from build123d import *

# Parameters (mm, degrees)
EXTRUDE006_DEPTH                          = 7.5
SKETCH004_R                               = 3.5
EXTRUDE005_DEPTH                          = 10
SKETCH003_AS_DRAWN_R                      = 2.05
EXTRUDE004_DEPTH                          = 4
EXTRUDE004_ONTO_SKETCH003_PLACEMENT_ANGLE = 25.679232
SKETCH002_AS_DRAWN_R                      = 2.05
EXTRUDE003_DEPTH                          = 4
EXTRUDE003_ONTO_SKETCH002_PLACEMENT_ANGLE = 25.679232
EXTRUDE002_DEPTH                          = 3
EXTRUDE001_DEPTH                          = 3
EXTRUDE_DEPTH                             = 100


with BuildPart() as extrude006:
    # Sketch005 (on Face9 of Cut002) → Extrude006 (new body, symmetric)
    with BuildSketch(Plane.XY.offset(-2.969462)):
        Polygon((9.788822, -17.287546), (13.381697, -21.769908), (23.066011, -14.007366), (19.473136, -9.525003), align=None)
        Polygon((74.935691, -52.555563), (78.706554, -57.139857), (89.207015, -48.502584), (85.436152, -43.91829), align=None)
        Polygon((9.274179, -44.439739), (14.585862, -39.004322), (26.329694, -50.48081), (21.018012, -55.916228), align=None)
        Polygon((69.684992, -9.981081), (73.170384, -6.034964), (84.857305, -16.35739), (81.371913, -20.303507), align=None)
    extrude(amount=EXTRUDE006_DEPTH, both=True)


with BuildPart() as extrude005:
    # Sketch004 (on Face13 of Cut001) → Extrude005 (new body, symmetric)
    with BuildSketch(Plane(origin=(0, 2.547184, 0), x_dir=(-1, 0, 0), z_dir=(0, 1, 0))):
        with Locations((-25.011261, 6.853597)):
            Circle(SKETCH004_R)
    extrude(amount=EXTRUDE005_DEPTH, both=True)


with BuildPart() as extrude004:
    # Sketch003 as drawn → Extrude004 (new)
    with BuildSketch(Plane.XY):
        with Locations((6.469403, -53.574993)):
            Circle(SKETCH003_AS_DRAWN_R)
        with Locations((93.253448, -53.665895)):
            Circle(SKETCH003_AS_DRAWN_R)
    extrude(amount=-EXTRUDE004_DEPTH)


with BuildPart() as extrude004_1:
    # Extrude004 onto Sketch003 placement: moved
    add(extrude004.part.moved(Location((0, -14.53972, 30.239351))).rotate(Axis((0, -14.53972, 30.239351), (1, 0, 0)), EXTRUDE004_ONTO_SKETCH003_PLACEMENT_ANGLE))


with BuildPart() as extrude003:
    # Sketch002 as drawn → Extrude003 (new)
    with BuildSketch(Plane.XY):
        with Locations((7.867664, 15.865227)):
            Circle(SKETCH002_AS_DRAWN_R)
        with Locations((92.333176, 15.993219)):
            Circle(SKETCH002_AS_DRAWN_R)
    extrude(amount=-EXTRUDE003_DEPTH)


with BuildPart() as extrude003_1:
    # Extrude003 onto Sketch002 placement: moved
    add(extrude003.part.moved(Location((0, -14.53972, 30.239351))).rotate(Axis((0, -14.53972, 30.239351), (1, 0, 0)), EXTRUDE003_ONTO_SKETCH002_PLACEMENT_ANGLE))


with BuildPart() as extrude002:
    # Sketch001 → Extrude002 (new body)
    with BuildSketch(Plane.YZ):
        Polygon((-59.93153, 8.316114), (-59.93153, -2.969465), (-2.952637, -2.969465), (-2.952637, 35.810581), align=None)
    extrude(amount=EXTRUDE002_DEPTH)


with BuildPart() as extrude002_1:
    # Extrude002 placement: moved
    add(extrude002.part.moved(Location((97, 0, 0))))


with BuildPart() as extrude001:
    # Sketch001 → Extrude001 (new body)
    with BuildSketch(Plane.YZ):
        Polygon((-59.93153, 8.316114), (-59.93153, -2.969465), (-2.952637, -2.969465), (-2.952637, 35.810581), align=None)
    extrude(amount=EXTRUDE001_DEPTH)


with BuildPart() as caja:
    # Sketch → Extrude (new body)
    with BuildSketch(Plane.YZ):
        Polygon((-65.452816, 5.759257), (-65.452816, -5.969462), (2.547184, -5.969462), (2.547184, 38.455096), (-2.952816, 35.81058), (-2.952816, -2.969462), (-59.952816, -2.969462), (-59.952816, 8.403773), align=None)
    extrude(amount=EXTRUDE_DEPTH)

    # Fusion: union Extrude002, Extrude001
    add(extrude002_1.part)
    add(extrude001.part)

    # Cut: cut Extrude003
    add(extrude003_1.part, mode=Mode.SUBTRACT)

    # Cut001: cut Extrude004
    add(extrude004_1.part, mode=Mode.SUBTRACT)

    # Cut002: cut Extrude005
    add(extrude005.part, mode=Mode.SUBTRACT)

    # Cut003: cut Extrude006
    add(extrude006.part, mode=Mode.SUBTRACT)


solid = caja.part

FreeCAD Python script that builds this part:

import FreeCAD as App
import Part
import Sketcher
Q = App.Units.Quantity


def add_polygon(sketch, points):
    """Adds a closed chain of lines whose ends are joined by coincident constraints."""
    first, n = sketch.GeometryCount, len(points)
    for a, b in zip(points, points[1:] + points[:1]):
        sketch.addGeometry(Part.LineSegment(App.Vector(*a, 0), App.Vector(*b, 0)), False)
    for i in range(n):
        sketch.addConstraint(Sketcher.Constraint("Coincident", first + i, 2, first + (i + 1) % n, 1))

doc = App.newDocument("Part")
body = doc.addObject("PartDesign::Body", "Body")
body.AllowCompound = True

# Sketch on XY plane
sketch1 = body.newObject("Sketcher::SketchObject", "Sketch")
sketch1.AttachmentSupport = (doc.getObject("XY_Plane"), [""])
sketch1.MapMode = "FlatFace"
sketch1.AttachmentOffset = App.Placement(App.Vector(0, 0, -2.969462), App.Rotation())
add_polygon(sketch1, [(10, -17), (13, -22), (23, -14), (19, -10)])  # lines 0-3
add_polygon(sketch1, [(75, -53), (79, -57), (89, -49), (85, -44)])  # lines 4-7
add_polygon(sketch1, [(15, -39), (9, -44), (21, -56), (26, -50)])  # lines 8-11
add_polygon(sketch1, [(73, -6), (70, -10), (81, -20), (85, -16)])  # lines 12-15
sketch1.addConstraint([
    Sketcher.Constraint("Perpendicular", 0, 1),
    Sketcher.Constraint("Perpendicular", 1, 2),
    Sketcher.Constraint("Perpendicular", 2, 3),
    Sketcher.Constraint("Perpendicular", 4, 5),
    Sketcher.Constraint("Perpendicular", 5, 6),
    Sketcher.Constraint("Perpendicular", 6, 7),
    Sketcher.Constraint("Perpendicular", 8, 9),
    Sketcher.Constraint("Perpendicular", 9, 10),
    Sketcher.Constraint("Perpendicular", 10, 11),
    Sketcher.Constraint("Perpendicular", 12, 13),
    Sketcher.Constraint("Perpendicular", 13, 14),
    Sketcher.Constraint("Perpendicular", 14, 15),
    Sketcher.Constraint("DistanceX", 9, 2, 1, 2, Q("2.047999 mm")),
    Sketcher.Constraint("DistanceX", 4, 2, 6, 2, Q("6.729598 mm")),
    Sketcher.Constraint("DistanceY", 10, 2, 0, 2, Q("28.710902 mm")),
    Sketcher.Constraint("DistanceX", 12, 2, 7, 2, Q("5.250699 mm")),
    Sketcher.Constraint("DistanceX", 13, 2, 5, 2, Q("7.835102 mm")),
    Sketcher.Constraint("DistanceY", 6, 2, 14, 2, Q("27.5609 mm")),
    Sketcher.Constraint("Distance", 0, Q("5.74459 mm")),
    Sketcher.Constraint("Distance", 4, Q("5.935921 mm")),
    Sketcher.Constraint("Distance", 8, Q("7.599851 mm")),
    Sketcher.Constraint("Distance", 12, Q("5.264959 mm")),
    Sketcher.Constraint("Distance", 13, Q("15.592838 mm")),
    Sketcher.Constraint("DistanceY", 0, 2, -1, 1, Q("21.769908 mm")),
    Sketcher.Constraint("DistanceX", -1, 1, 1, 2, Q("23.066011 mm")),
    Sketcher.Constraint("DistanceY", 6, 2, -1, 1, Q("43.91829 mm")),
    Sketcher.Constraint("DistanceX", -1, 1, 7, 2, Q("74.935691 mm")),
    Sketcher.Constraint("DistanceX", -1, 1, 8, 2, Q("9.274179 mm")),
    Sketcher.Constraint("DistanceY", 8, 2, -1, 1, Q("44.439739 mm")),
    Sketcher.Constraint("DistanceY", 12, 2, -1, 1, Q("9.981081 mm")),
    Sketcher.Constraint("DistanceX", 0, 2, 2, 2, Q("6.091439 mm")),
    Sketcher.Constraint("DistanceX", 3, 2, 1, 2, Q("13.277189 mm")),
])
pad1 = body.newObject("PartDesign::Pad", "Pad")
pad1.Profile = sketch1
pad1.Length = 15
pad1.Midplane = True
body2 = doc.addObject("PartDesign::Body", "Body001")

# Sketch on XZ plane
sketch2 = body2.newObject("Sketcher::SketchObject", "Sketch001")
sketch2.AttachmentSupport = (doc.getObject("XZ_Plane001"), [""])
sketch2.MapMode = "FlatFace"
sketch2.AttachmentOffset = App.Placement(App.Vector(0, 0, -2.547184), App.Rotation())
sketch2.addGeometry(Part.Circle(App.Vector(25, 6.9, 0), App.Vector(0, 0, 1), 3.5), False)
sketch2.addConstraint([
    Sketcher.Constraint("Diameter", 0, Q("7 mm")),
    Sketcher.Constraint("DistanceX", -1, 1, 0, 3, Q("25.011261 mm")),
    Sketcher.Constraint("DistanceY", -1, 1, 0, 3, Q("6.853597 mm")),
])
pad2 = body2.newObject("PartDesign::Pad", "Pad001")
pad2.Profile = sketch2
pad2.Length = 20
pad2.Midplane = True
body3 = doc.addObject("PartDesign::Body", "Body002")
body3.AllowCompound = True

# Sketch on XY plane
sketch3 = body3.newObject("Sketcher::SketchObject", "Sketch002")
sketch3.AttachmentSupport = (doc.getObject("XY_Plane002"), [""])
sketch3.MapMode = "FlatFace"
sketch3.addGeometry([
    Part.Circle(App.Vector(6.5, -53.6, 0), App.Vector(0, 0, 1), 2),
    Part.Circle(App.Vector(93.3, -53.7, 0), App.Vector(0, 0, 1), 2),
], False)
sketch3.addConstraint([
    Sketcher.Constraint("Equal", 0, 1),
    Sketcher.Constraint("Diameter", 0, Q("4.1 mm")),
    Sketcher.Constraint("DistanceY", 1, 3, 0, 3, Q("0.090902 mm")),
    Sketcher.Constraint("DistanceX", -1, 1, 1, 3, Q("93.253448 mm")),
    Sketcher.Constraint("DistanceX", -1, 1, 0, 3, Q("6.469403 mm")),
    Sketcher.Constraint("DistanceY", 0, 3, -1, 1, Q("53.574993 mm")),
])
pad3 = body3.newObject("PartDesign::Pad", "Pad002")
pad3.Profile = sketch3
pad3.Length = 4
pad3.Reversed = True
body4 = doc.addObject("PartDesign::Body", "Body003")
body4.AllowCompound = True
doc.recompute()

body3.Placement = App.Placement(App.Vector(0, -14.53972, 30.239351), App.Rotation(App.Vector(1, 0, 0), 25.679232))
boolean = body4.newObject("PartDesign::Boolean", "Boolean")
boolean.Type = "Fuse"
boolean.addObjects([body3])
body5 = doc.addObject("PartDesign::Body", "Body004")
body5.AllowCompound = True

# Sketch on XY plane
sketch4 = body5.newObject("Sketcher::SketchObject", "Sketch003")
sketch4.AttachmentSupport = (doc.getObject("XY_Plane004"), [""])
sketch4.MapMode = "FlatFace"
sketch4.addGeometry([
    Part.Circle(App.Vector(7.9, 15.9, 0), App.Vector(0, 0, 1), 2),
    Part.Circle(App.Vector(92.3, 16, 0), App.Vector(0, 0, 1), 2),
], False)
sketch4.addConstraint([
    Sketcher.Constraint("Equal", 0, 1),
    Sketcher.Constraint("Diameter", 0, Q("4.1 mm")),
    Sketcher.Constraint("DistanceY", -1, 1, 1, 3, Q("15.993219 mm")),
    Sketcher.Constraint("DistanceX", 0, 3, 1, 3, Q("84.465512 mm")),
    Sketcher.Constraint("DistanceY", 0, 3, 1, 3, Q("0.127992 mm")),
    Sketcher.Constraint("DistanceX", -1, 1, 0, 3, Q("7.867664 mm")),
])
pad4 = body5.newObject("PartDesign::Pad", "Pad003")
pad4.Profile = sketch4
pad4.Length = 4
pad4.Reversed = True
body6 = doc.addObject("PartDesign::Body", "Body005")
body6.AllowCompound = True
doc.recompute()

body5.Placement = App.Placement(App.Vector(0, -14.53972, 30.239351), App.Rotation(App.Vector(1, 0, 0), 25.679232))
boolean2 = body6.newObject("PartDesign::Boolean", "Boolean001")
boolean2.Type = "Fuse"
boolean2.addObjects([body5])
body7 = doc.addObject("PartDesign::Body", "Body006")

# Sketch on YZ plane
sketch5 = body7.newObject("Sketcher::SketchObject", "Sketch004")
sketch5.AttachmentSupport = (doc.getObject("YZ_Plane006"), [""])
sketch5.MapMode = "FlatFace"
add_polygon(sketch5, [(-60, 8), (-60, -3), (-3, -3), (-3, 36)])  # lines 0-3
sketch5.addConstraint([
    Sketcher.Constraint("Vertical", 0),
    Sketcher.Constraint("Horizontal", 1),
    Sketcher.Constraint("Vertical", 2),
    Sketcher.Constraint("DistanceY", 0, 2, 0, 1, Q("11.285579 mm")),
    Sketcher.Constraint("Distance", 3, Q("63.26563 mm")),
    Sketcher.Constraint("DistanceX", 1, 1, 1, 2, Q("56.978893 mm")),
    Sketcher.Constraint("DistanceX", 0, 2, -1, 1, Q("59.93153 mm")),
    Sketcher.Constraint("DistanceY", -1, 1, 2, 2, Q("35.810581 mm")),
])
pad5 = body7.newObject("PartDesign::Pad", "Pad004")
pad5.Profile = sketch5
pad5.Length = 3
body8 = doc.addObject("PartDesign::Body", "Body007")
doc.recompute()

body7.Placement = App.Placement(App.Vector(97, 0, 0), App.Rotation(App.Vector(0, 0, 1), 0))
boolean3 = body8.newObject("PartDesign::Boolean", "Boolean002")
boolean3.Type = "Fuse"
boolean3.addObjects([body7])
body9 = doc.addObject("PartDesign::Body", "Body008")

# Sketch on YZ plane
sketch6 = body9.newObject("Sketcher::SketchObject", "Sketch005")
sketch6.AttachmentSupport = (doc.getObject("YZ_Plane008"), [""])
sketch6.MapMode = "FlatFace"
add_polygon(sketch6, [(-60, 8), (-60, -3), (-3, -3), (-3, 36)])  # lines 0-3
sketch6.addConstraint([
    Sketcher.Constraint("Vertical", 0),
    Sketcher.Constraint("Horizontal", 1),
    Sketcher.Constraint("Vertical", 2),
    Sketcher.Constraint("DistanceY", 0, 2, 0, 1, Q("11.285579 mm")),
    Sketcher.Constraint("Distance", 3, Q("63.26563 mm")),
    Sketcher.Constraint("DistanceX", 1, 1, 1, 2, Q("56.978893 mm")),
    Sketcher.Constraint("DistanceX", 0, 2, -1, 1, Q("59.93153 mm")),
    Sketcher.Constraint("DistanceY", -1, 1, 2, 2, Q("35.810581 mm")),
])
pad6 = body9.newObject("PartDesign::Pad", "Pad005")
pad6.Profile = sketch6
pad6.Length = 3
body10 = doc.addObject("PartDesign::Body", "Body009")

# Sketch on YZ plane
sketch7 = body10.newObject("Sketcher::SketchObject", "Sketch006")
sketch7.AttachmentSupport = (doc.getObject("YZ_Plane009"), [""])
sketch7.MapMode = "FlatFace"
add_polygon(sketch7, [(-65, 6), (-65, -6), (3, -6), (3, 38), (-3, 36), (-3, -3), (-60, -3), (-60, 8)])  # lines 0-7
sketch7.addConstraint([
    Sketcher.Constraint("Vertical", 0),
    Sketcher.Constraint("Horizontal", 1),
    Sketcher.Constraint("Vertical", 2),
    Sketcher.Constraint("Vertical", 4),
    Sketcher.Constraint("Horizontal", 5),
    Sketcher.Constraint("Vertical", 6),
    Sketcher.Constraint("Parallel", 3, 7),
    Sketcher.Constraint("Equal", 3, 7),
    Sketcher.Constraint("DistanceX", 1, 1, 1, 2, Q("68 mm")),
    Sketcher.Constraint("DistanceX", 5, 2, 5, 1, Q("57 mm")),
    Sketcher.Constraint("DistanceY", 1, 2, 4, 2, Q("3 mm")),
    Sketcher.Constraint("DistanceY", 0, 2, 0, 1, Q("11.728719 mm")),
    Sketcher.Constraint("DistanceY", 2, 1, 2, 2, Q("44.424558 mm")),
    Sketcher.Constraint("DistanceY", 4, 2, 4, 1, Q("38.780042 mm")),
    Sketcher.Constraint("DistanceY", -1, 1, 3, 2, Q("35.81058 mm")),
    Sketcher.Constraint("DistanceX", 0, 2, -1, 1, Q("65.452816 mm")),
])
pad7 = body10.newObject("PartDesign::Pad", "Pad006")
pad7.Profile = sketch7
pad7.Length = 100
doc.recompute()

boolean4 = body10.newObject("PartDesign::Boolean", "Boolean003")
boolean4.Type = "Fuse"
boolean4.addObjects([body8])
doc.recompute()

boolean5 = body10.newObject("PartDesign::Boolean", "Boolean004")
boolean5.Type = "Fuse"
boolean5.addObjects([body9])
doc.recompute()

boolean6 = body10.newObject("PartDesign::Boolean", "Boolean005")
boolean6.Type = "Cut"
boolean6.addObjects([body6])
doc.recompute()

boolean7 = body10.newObject("PartDesign::Boolean", "Boolean006")
boolean7.Type = "Cut"
boolean7.addObjects([body4])
doc.recompute()

boolean8 = body10.newObject("PartDesign::Boolean", "Boolean007")
boolean8.Type = "Cut"
boolean8.addObjects([body2])
doc.recompute()

boolean9 = body10.newObject("PartDesign::Boolean", "Boolean008")
boolean9.Type = "Cut"
boolean9.addObjects([body])

doc.recompute()
